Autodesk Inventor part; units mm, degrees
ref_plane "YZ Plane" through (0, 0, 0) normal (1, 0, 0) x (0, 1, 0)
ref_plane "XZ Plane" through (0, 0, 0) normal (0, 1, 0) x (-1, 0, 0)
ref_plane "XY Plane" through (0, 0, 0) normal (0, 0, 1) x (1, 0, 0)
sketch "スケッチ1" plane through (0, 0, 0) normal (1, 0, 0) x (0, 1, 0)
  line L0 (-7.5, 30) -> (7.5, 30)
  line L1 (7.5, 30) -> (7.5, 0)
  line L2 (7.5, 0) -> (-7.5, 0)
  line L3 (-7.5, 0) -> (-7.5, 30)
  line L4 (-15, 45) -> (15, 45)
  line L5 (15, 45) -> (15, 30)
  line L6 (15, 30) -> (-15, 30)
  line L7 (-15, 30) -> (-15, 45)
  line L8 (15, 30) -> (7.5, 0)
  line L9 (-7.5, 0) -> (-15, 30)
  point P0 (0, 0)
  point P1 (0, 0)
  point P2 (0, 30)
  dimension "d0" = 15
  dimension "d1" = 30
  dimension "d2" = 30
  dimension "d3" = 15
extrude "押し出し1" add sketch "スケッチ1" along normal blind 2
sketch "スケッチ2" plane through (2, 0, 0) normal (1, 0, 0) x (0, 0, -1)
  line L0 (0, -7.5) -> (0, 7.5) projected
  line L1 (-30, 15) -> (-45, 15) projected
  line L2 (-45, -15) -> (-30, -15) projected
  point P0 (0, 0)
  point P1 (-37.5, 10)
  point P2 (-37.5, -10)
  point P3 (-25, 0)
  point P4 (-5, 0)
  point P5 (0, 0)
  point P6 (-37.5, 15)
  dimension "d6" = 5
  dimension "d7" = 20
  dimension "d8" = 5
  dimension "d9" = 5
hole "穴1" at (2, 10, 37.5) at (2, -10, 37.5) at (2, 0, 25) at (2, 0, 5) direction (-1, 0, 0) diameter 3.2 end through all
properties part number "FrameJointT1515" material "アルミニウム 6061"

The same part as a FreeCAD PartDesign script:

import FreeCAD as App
import Part
import Sketcher

doc = App.newDocument("Part")
body = doc.addObject("PartDesign::Body", "Body")

# Sketch on YZ plane
sketch1 = body.newObject("Sketcher::SketchObject", "Sketch")
sketch1.AttachmentSupport = (doc.getObject("YZ_Plane"), [""])
sketch1.MapMode = "FlatFace"
sketch1.addGeometry(Part.LineSegment(App.Vector(-15, 45, 0), App.Vector(-15, 30, 0)), False)
sketch1.addGeometry(Part.LineSegment(App.Vector(-15, 30, 0), App.Vector(-7.5, 0, 0)), False)
sketch1.addGeometry(Part.LineSegment(App.Vector(-7.5, 0, 0), App.Vector(7.5, 0, 0)), False)
sketch1.addGeometry(Part.LineSegment(App.Vector(7.5, 0, 0), App.Vector(15, 30, 0)), False)
sketch1.addGeometry(Part.LineSegment(App.Vector(15, 30, 0), App.Vector(15, 45, 0)), False)
sketch1.addGeometry(Part.LineSegment(App.Vector(15, 45, 0), App.Vector(-15, 45, 0)), False)
sketch1.addConstraint(Sketcher.Constraint("Coincident", 0, 2, 1, 1))
sketch1.addConstraint(Sketcher.Constraint("Coincident", 1, 2, 2, 1))
sketch1.addConstraint(Sketcher.Constraint("Coincident", 2, 2, 3, 1))
sketch1.addConstraint(Sketcher.Constraint("Coincident", 3, 2, 4, 1))
sketch1.addConstraint(Sketcher.Constraint("Coincident", 4, 2, 5, 1))
sketch1.addConstraint(Sketcher.Constraint("Coincident", 5, 2, 0, 1))
sketch1.addConstraint(Sketcher.Constraint("Vertical", 0))
sketch1.addConstraint(Sketcher.Constraint("Horizontal", 2))
sketch1.addConstraint(Sketcher.Constraint("Vertical", 4))
sketch1.addConstraint(Sketcher.Constraint("Horizontal", 5))
sketch1.addConstraint(Sketcher.Constraint("Symmetric", 1, 2, 2, 2, -1, 1))
sketch1.addConstraint(Sketcher.Constraint("Symmetric", 0, 2, 3, 2, -2))
sketch1.addConstraint(Sketcher.Constraint("Equal", 2, 0))
sketch1.addConstraint(Sketcher.Constraint("DistanceX", 2, 1, 2, 2, 15.0))
sketch1.addConstraint(Sketcher.Constraint("DistanceX", 5, 2, 5, 1, 30.0))
sketch1.addConstraint(Sketcher.Constraint("DistanceY", -1, 1, 0, 2, 30.0))
pad1 = body.newObject("PartDesign::Pad", "Pad")
pad1.Profile = sketch1
pad1.Length = 2

# Sketch on YZ plane
sketch2 = body.newObject("Sketcher::SketchObject", "Sketch001")
sketch2.AttachmentSupport = (doc.getObject("YZ_Plane"), [""])
sketch2.MapMode = "FlatFace"
sketch2.AttachmentOffset = App.Placement(App.Vector(0, 0, 2), App.Rotation())
sketch2.addGeometry(Part.Circle(App.Vector(10, 37.5, 0), App.Vector(0, 0, 1), 1.6), False)
sketch2.addGeometry(Part.Circle(App.Vector(-10, 37.5, 0), App.Vector(0, 0, 1), 1.6), False)
sketch2.addGeometry(Part.Circle(App.Vector(0, 25, 0), App.Vector(0, 0, 1), 1.6), False)
sketch2.addGeometry(Part.Circle(App.Vector(0, 5, 0), App.Vector(0, 0, 1), 1.6), False)
sketch2.addConstraint(Sketcher.Constraint("Equal", 0, 1))
sketch2.addConstraint(Sketcher.Constraint("Equal", 1, 2))
sketch2.addConstraint(Sketcher.Constraint("Equal", 2, 3))
sketch2.addConstraint(Sketcher.Constraint("Symmetric", 0, 3, 1, 3, -2))
sketch2.addConstraint(Sketcher.Constraint("PointOnObject", 2, 3, -2))
sketch2.addConstraint(Sketcher.Constraint("PointOnObject", 3, 3, -2))
sketch2.addConstraint(Sketcher.Constraint("Diameter", 0, 3.2))
sketch2.addConstraint(Sketcher.Constraint("DistanceX", -1, 1, 0, 3, 10.0))
sketch2.addConstraint(Sketcher.Constraint("DistanceY", -1, 1, 2, 3, 25.0))
sketch2.addConstraint(Sketcher.Constraint("DistanceY", -1, 1, 3, 3, 5.0))
sketch2.addConstraint(Sketcher.Constraint("DistanceY", -1, 1, 0, 3, 37.5))
doc.recompute()
hole = body.newObject("PartDesign::Hole", "Hole")
hole.Profile = sketch2
hole.ThreadType = "None"
hole.Diameter = 3.2
hole.DepthType = "ThroughAll"

doc.recompute()
